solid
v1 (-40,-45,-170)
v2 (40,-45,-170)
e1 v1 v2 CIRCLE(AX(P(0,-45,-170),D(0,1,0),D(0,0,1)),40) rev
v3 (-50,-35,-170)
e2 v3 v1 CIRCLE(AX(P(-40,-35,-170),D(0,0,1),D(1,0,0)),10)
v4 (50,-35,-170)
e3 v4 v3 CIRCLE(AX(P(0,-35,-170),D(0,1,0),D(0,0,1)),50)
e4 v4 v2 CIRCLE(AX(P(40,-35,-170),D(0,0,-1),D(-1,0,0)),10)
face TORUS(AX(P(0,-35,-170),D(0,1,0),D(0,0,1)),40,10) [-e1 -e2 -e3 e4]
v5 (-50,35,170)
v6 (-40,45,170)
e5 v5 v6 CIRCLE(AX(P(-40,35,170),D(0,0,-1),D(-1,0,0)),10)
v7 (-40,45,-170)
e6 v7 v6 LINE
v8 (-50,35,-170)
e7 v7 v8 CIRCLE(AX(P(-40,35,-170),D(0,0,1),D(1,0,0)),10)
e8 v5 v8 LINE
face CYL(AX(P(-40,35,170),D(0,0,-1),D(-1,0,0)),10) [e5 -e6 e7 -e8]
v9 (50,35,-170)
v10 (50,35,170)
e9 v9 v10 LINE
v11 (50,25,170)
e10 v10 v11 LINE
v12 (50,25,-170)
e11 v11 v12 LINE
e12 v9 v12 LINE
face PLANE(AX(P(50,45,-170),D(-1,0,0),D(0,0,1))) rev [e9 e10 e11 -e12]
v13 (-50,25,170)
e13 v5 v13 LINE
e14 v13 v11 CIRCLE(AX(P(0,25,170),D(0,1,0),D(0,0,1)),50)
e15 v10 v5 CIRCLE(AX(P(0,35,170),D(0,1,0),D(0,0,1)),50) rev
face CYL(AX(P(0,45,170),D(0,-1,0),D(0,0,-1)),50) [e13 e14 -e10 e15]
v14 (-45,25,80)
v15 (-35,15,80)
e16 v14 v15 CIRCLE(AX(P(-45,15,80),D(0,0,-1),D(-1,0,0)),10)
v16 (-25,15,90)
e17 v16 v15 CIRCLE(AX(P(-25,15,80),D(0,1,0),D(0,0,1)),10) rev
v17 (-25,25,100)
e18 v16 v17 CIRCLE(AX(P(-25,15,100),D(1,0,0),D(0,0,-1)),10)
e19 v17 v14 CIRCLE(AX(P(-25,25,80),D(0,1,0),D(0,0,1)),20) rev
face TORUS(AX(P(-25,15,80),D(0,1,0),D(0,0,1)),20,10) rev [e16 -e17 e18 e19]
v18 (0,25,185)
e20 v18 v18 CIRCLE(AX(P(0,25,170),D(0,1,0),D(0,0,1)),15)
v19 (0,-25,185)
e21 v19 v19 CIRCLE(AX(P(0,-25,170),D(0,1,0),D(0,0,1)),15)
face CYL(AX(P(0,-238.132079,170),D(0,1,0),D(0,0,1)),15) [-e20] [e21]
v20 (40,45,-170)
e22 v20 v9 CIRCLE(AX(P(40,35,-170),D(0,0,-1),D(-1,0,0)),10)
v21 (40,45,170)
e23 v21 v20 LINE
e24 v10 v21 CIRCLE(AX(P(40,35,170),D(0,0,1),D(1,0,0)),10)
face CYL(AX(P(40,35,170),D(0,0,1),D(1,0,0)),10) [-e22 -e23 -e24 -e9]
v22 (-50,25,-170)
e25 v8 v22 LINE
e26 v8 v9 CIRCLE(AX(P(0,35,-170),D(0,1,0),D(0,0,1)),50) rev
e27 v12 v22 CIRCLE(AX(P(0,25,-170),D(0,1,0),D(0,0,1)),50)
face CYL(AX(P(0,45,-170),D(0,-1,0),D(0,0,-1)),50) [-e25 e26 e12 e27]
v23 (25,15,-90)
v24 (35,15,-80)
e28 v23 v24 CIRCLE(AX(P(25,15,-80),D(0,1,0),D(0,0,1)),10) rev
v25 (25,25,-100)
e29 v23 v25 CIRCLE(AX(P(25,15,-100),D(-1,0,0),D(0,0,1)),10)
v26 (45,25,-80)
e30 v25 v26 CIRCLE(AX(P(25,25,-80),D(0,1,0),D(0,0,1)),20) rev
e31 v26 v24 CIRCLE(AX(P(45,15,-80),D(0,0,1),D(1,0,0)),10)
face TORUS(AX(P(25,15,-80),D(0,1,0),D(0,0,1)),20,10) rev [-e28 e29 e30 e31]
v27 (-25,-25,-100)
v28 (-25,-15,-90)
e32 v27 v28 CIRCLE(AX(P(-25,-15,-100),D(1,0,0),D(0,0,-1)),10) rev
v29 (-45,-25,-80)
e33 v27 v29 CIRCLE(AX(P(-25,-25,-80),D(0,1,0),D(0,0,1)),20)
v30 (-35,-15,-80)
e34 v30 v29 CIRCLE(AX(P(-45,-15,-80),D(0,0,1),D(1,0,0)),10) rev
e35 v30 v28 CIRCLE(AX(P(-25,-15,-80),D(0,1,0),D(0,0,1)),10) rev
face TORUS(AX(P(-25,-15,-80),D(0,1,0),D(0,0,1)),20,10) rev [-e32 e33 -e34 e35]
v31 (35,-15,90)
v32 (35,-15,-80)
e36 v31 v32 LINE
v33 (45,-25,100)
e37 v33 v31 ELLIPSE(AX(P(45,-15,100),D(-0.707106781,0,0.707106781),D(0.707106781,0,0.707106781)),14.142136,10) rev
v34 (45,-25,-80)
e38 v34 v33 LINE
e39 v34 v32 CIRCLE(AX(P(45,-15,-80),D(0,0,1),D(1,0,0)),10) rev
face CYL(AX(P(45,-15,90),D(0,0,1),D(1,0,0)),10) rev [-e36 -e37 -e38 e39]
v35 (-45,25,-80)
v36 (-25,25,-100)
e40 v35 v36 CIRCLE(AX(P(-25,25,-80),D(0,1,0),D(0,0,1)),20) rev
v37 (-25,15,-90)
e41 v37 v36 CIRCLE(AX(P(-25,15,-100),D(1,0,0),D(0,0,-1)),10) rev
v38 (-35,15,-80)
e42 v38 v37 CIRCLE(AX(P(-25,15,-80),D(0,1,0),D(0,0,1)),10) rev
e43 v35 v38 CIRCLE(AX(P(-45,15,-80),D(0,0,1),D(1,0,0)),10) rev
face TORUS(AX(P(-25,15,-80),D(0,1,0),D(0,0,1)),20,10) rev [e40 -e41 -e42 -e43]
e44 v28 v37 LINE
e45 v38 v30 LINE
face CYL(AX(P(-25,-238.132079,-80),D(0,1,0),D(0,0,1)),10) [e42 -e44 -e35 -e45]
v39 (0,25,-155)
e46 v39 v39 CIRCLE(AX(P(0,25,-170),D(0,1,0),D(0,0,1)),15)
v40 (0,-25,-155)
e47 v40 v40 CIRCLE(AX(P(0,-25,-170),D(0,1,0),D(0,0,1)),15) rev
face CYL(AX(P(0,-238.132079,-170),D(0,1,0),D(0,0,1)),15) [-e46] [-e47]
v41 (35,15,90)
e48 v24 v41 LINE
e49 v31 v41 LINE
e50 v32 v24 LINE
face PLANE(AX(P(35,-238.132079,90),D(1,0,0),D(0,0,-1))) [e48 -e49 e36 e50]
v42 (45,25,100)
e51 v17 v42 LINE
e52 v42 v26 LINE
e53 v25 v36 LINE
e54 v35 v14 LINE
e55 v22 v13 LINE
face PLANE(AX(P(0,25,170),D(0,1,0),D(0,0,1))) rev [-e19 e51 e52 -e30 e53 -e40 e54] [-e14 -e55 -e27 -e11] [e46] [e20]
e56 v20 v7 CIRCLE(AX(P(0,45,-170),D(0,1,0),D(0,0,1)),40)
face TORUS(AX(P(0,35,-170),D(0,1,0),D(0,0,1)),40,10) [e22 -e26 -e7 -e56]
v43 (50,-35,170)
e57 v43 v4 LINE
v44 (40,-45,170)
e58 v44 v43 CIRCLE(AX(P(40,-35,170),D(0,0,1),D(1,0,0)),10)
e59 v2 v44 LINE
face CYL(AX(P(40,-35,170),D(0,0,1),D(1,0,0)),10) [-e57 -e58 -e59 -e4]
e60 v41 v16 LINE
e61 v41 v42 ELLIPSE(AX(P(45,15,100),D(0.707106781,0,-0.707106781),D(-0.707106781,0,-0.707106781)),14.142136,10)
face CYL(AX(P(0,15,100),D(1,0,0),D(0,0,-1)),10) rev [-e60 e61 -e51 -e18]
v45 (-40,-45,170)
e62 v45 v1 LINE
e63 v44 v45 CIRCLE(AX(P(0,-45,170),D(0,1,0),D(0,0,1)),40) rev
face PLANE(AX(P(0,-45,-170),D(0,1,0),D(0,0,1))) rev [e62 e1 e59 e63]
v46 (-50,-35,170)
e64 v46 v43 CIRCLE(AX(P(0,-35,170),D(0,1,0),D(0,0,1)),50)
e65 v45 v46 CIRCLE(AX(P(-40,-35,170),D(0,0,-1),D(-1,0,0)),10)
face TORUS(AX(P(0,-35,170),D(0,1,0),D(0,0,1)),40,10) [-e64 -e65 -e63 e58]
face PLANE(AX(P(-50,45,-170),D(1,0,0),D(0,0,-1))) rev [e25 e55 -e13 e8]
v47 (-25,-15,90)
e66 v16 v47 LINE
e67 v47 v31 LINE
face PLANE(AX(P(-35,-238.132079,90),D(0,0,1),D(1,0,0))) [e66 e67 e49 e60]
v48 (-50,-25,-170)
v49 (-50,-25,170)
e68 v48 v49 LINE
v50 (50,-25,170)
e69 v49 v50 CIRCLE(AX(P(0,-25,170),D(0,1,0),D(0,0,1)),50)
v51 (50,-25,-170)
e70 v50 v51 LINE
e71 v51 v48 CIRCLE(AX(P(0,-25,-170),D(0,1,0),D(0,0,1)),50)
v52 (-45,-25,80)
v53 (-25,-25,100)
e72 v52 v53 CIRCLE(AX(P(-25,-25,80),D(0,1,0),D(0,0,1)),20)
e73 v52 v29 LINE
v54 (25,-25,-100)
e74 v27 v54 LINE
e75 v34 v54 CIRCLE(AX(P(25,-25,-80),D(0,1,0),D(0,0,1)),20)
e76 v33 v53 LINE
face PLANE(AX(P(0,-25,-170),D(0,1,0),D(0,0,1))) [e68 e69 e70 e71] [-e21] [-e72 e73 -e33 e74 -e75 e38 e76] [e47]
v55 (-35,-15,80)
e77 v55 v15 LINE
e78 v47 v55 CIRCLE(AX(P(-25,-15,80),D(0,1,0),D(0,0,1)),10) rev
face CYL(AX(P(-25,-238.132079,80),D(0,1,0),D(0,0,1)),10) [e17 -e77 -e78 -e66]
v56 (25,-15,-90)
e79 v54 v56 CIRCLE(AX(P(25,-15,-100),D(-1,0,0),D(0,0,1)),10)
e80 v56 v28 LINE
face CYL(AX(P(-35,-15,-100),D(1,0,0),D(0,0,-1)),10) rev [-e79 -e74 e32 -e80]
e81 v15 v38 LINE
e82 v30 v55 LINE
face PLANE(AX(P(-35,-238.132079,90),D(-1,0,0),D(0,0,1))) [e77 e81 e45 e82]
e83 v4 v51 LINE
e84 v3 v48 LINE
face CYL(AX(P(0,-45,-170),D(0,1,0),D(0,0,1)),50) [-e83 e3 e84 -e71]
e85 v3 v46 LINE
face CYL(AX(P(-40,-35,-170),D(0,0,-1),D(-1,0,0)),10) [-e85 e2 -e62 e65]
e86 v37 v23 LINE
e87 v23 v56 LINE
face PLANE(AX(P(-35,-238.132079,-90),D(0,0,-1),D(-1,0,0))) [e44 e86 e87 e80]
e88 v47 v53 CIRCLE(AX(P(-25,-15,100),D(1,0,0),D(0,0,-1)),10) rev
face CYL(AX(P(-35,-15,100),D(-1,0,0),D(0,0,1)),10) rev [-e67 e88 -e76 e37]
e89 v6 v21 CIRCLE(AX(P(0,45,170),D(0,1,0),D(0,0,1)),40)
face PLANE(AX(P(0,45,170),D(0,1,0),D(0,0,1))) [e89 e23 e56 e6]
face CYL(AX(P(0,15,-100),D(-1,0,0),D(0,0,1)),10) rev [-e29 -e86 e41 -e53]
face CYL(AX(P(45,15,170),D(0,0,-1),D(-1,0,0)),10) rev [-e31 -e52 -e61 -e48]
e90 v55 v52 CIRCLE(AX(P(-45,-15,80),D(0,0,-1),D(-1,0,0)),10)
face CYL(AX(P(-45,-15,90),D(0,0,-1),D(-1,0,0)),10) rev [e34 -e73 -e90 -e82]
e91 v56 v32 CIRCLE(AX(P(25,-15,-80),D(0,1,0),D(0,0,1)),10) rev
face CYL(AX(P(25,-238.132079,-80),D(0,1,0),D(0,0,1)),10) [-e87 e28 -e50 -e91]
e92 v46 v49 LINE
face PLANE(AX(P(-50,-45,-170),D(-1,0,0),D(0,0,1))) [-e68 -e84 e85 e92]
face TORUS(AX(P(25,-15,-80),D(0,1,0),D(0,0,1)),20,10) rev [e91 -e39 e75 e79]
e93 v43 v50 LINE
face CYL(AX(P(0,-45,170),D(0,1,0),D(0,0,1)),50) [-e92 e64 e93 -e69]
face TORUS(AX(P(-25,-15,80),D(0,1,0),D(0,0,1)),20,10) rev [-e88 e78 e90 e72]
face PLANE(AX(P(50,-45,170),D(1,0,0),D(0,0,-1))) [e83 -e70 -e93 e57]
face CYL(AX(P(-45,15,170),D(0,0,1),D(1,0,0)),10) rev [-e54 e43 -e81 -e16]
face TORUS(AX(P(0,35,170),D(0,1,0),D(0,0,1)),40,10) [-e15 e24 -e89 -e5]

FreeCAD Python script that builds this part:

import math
import FreeCAD as App
import Part
import Sketcher

V = App.Vector


def edges_at(feature, points):
    """Names of the edges that pass closest to the given points."""
    edges = feature.Shape.Edges
    near = lambda p: min(range(len(edges)), key=lambda i: edges[i].distToShape(Part.Vertex(*p))[0])
    return sorted({f"Edge{near(p) + 1}" for p in points})


def add_polygon(sketch, points):
    """Adds a closed chain of lines whose ends are joined by coincident constraints."""
    first, n = sketch.GeometryCount, len(points)
    for a, b in zip(points, points[1:] + points[:1]):
        sketch.addGeometry(Part.LineSegment(App.Vector(*a, 0), App.Vector(*b, 0)), False)
    for i in range(n):
        sketch.addConstraint(Sketcher.Constraint("Coincident", first + i, 2, first + (i + 1) % n, 1))

doc = App.newDocument("Part")
body = doc.addObject("PartDesign::Body", "Body")

# Sketch on XZ plane
sketch1 = body.newObject("Sketcher::SketchObject", "Sketch")
sketch1.AttachmentSupport = (doc.getObject("XZ_Plane"), [""])
sketch1.MapMode = "FlatFace"
sketch1.AttachmentOffset = App.Placement(V(0, 0, -25), App.Rotation())
sketch1.addGeometry([
    Part.LineSegment(V(-50, -170, 0), V(-50, 170, 0)),
    Part.ArcOfCircle(Part.Circle(V(0, 170, 0), V(0, 0, 1), 50), math.radians(0), math.radians(180)),
    Part.LineSegment(V(50, 170, 0), V(50, -170, 0)),
    Part.ArcOfCircle(Part.Circle(V(0, -170, 0), V(0, 0, 1), 50), math.radians(180), math.radians(360)),
], False)
sketch1.addConstraint([
    Sketcher.Constraint("Tangent", 0, 2, 1, 2),
    Sketcher.Constraint("Tangent", 1, 1, 2, 1),
    Sketcher.Constraint("Tangent", 2, 2, 3, 2),
    Sketcher.Constraint("Tangent", 3, 1, 0, 1),
    Sketcher.Constraint("Vertical", 0),
    Sketcher.Constraint("Vertical", 2),
    Sketcher.Constraint("Symmetric", 1, 3, 3, 3, -1, 1),
    Sketcher.Constraint("Radius", 1, 50.0),
    Sketcher.Constraint("DistanceY", 0, 1, 0, 2, 340.0),
])
pad1 = body.newObject("PartDesign::Pad", "Pad")
pad1.Profile = sketch1
pad1.Length = 20
pad1.Reversed = True
body2 = doc.addObject("PartDesign::Body", "Body001")

# Sketch on XZ plane
sketch2 = body2.newObject("Sketcher::SketchObject", "Sketch001")
sketch2.AttachmentSupport = (doc.getObject("XZ_Plane001"), [""])
sketch2.MapMode = "FlatFace"
sketch2.AttachmentOffset = App.Placement(V(0, 0, 25), App.Rotation())
sketch2.addGeometry([
    Part.LineSegment(V(50, 170, 0), V(50, -170, 0)),
    Part.ArcOfCircle(Part.Circle(V(0, -170, 0), V(0, 0, 1), 50), math.radians(180), math.radians(360)),
    Part.LineSegment(V(-50, -170, 0), V(-50, 170, 0)),
    Part.ArcOfCircle(Part.Circle(V(0, 170, 0), V(0, 0, 1), 50), math.radians(0), math.radians(180)),
], False)
sketch2.addConstraint([
    Sketcher.Constraint("Tangent", 0, 2, 1, 2),
    Sketcher.Constraint("Tangent", 1, 1, 2, 1),
    Sketcher.Constraint("Tangent", 2, 2, 3, 2),
    Sketcher.Constraint("Tangent", 3, 1, 0, 1),
    Sketcher.Constraint("Vertical", 0),
    Sketcher.Constraint("Vertical", 2),
    Sketcher.Constraint("Symmetric", 1, 3, 3, 3, -1, 1),
    Sketcher.Constraint("Radius", 1, 50.0),
    Sketcher.Constraint("DistanceY", 0, 2, 0, 1, 340.0),
])
pad2 = body2.newObject("PartDesign::Pad", "Pad001")
pad2.Profile = sketch2
pad2.Length = 20
body.AllowCompound = True
doc.recompute()

boolean = body.newObject("PartDesign::Boolean", "Boolean")
boolean.Type = "Fuse"
boolean.addObjects([body2])

# Sketch on XZ plane
sketch3 = body.newObject("Sketcher::SketchObject", "Sketch002")
sketch3.AttachmentSupport = (doc.getObject("XZ_Plane"), [""])
sketch3.MapMode = "FlatFace"
sketch3.AttachmentOffset = App.Placement(V(0, 0, -45), App.Rotation())
sketch3.addGeometry(Part.Circle(V(0, -170, 0), V(0, 0, 1), 15), False)  # 0
sketch3.addGeometry(Part.Circle(V(0, 170, 0), V(0, 0, 1), 15), False)  # 1
add_polygon(sketch3, [(-35, -90), (-35, 90), (35, 90), (35, -90)])  # lines 2-5
sketch3.addConstraint([
    Sketcher.Constraint("Vertical", 2),
    Sketcher.Constraint("Horizontal", 3),
    Sketcher.Constraint("Vertical", 4),
    Sketcher.Constraint("Horizontal", 5),
    Sketcher.Constraint("Equal", 0, 1),
    Sketcher.Constraint("Symmetric", 0, 3, 1, 3, -1, 1),
    Sketcher.Constraint("Symmetric", 2, 2, 4, 2, -1, 1),
    Sketcher.Constraint("PointOnObject", 0, 3, -2),
    Sketcher.Constraint("Diameter", 0, 30.0),
    Sketcher.Constraint("DistanceX", 3, 1, 3, 2, 70.0),
    Sketcher.Constraint("DistanceY", 2, 1, 2, 2, 180.0),
    Sketcher.Constraint("DistanceY", 0, 3, -1, 1, 170.0),
])
pad3 = body.newObject("PartDesign::Pad", "Pad002")
pad3.Profile = sketch3
pad3.Length = 90
doc.recompute()

fillet = body.newObject("PartDesign::Fillet", "Fillet")
fillet.Base = (pad3, edges_at(pad3, [
    (0, 45, -220),
    (-50, 45, 0),
    (0, -45, -220),
    (50, -45, 0),
    (0, -45, 220),
    (-50, -45, 0),
    (0, 45, 220),
    (50, 45, 0),
]))
fillet.Radius = 10
doc.recompute()

fillet2 = body.newObject("PartDesign::Fillet", "Fillet001")
fillet2.Base = (fillet, edges_at(fillet, [
    (35, -25, 0),
    (35, 0, -90),
    (0, -25, 90),
    (-35, -25, 0),
    (-35, 0, 90),
    (0, -25, -90),
    (-35, 0, -90),
    (35, 25, 0),
    (0, 25, 90),
    (-35, 25, 0),
    (0, 25, -90),
]))
fillet2.Radius = 10

doc.recompute()
